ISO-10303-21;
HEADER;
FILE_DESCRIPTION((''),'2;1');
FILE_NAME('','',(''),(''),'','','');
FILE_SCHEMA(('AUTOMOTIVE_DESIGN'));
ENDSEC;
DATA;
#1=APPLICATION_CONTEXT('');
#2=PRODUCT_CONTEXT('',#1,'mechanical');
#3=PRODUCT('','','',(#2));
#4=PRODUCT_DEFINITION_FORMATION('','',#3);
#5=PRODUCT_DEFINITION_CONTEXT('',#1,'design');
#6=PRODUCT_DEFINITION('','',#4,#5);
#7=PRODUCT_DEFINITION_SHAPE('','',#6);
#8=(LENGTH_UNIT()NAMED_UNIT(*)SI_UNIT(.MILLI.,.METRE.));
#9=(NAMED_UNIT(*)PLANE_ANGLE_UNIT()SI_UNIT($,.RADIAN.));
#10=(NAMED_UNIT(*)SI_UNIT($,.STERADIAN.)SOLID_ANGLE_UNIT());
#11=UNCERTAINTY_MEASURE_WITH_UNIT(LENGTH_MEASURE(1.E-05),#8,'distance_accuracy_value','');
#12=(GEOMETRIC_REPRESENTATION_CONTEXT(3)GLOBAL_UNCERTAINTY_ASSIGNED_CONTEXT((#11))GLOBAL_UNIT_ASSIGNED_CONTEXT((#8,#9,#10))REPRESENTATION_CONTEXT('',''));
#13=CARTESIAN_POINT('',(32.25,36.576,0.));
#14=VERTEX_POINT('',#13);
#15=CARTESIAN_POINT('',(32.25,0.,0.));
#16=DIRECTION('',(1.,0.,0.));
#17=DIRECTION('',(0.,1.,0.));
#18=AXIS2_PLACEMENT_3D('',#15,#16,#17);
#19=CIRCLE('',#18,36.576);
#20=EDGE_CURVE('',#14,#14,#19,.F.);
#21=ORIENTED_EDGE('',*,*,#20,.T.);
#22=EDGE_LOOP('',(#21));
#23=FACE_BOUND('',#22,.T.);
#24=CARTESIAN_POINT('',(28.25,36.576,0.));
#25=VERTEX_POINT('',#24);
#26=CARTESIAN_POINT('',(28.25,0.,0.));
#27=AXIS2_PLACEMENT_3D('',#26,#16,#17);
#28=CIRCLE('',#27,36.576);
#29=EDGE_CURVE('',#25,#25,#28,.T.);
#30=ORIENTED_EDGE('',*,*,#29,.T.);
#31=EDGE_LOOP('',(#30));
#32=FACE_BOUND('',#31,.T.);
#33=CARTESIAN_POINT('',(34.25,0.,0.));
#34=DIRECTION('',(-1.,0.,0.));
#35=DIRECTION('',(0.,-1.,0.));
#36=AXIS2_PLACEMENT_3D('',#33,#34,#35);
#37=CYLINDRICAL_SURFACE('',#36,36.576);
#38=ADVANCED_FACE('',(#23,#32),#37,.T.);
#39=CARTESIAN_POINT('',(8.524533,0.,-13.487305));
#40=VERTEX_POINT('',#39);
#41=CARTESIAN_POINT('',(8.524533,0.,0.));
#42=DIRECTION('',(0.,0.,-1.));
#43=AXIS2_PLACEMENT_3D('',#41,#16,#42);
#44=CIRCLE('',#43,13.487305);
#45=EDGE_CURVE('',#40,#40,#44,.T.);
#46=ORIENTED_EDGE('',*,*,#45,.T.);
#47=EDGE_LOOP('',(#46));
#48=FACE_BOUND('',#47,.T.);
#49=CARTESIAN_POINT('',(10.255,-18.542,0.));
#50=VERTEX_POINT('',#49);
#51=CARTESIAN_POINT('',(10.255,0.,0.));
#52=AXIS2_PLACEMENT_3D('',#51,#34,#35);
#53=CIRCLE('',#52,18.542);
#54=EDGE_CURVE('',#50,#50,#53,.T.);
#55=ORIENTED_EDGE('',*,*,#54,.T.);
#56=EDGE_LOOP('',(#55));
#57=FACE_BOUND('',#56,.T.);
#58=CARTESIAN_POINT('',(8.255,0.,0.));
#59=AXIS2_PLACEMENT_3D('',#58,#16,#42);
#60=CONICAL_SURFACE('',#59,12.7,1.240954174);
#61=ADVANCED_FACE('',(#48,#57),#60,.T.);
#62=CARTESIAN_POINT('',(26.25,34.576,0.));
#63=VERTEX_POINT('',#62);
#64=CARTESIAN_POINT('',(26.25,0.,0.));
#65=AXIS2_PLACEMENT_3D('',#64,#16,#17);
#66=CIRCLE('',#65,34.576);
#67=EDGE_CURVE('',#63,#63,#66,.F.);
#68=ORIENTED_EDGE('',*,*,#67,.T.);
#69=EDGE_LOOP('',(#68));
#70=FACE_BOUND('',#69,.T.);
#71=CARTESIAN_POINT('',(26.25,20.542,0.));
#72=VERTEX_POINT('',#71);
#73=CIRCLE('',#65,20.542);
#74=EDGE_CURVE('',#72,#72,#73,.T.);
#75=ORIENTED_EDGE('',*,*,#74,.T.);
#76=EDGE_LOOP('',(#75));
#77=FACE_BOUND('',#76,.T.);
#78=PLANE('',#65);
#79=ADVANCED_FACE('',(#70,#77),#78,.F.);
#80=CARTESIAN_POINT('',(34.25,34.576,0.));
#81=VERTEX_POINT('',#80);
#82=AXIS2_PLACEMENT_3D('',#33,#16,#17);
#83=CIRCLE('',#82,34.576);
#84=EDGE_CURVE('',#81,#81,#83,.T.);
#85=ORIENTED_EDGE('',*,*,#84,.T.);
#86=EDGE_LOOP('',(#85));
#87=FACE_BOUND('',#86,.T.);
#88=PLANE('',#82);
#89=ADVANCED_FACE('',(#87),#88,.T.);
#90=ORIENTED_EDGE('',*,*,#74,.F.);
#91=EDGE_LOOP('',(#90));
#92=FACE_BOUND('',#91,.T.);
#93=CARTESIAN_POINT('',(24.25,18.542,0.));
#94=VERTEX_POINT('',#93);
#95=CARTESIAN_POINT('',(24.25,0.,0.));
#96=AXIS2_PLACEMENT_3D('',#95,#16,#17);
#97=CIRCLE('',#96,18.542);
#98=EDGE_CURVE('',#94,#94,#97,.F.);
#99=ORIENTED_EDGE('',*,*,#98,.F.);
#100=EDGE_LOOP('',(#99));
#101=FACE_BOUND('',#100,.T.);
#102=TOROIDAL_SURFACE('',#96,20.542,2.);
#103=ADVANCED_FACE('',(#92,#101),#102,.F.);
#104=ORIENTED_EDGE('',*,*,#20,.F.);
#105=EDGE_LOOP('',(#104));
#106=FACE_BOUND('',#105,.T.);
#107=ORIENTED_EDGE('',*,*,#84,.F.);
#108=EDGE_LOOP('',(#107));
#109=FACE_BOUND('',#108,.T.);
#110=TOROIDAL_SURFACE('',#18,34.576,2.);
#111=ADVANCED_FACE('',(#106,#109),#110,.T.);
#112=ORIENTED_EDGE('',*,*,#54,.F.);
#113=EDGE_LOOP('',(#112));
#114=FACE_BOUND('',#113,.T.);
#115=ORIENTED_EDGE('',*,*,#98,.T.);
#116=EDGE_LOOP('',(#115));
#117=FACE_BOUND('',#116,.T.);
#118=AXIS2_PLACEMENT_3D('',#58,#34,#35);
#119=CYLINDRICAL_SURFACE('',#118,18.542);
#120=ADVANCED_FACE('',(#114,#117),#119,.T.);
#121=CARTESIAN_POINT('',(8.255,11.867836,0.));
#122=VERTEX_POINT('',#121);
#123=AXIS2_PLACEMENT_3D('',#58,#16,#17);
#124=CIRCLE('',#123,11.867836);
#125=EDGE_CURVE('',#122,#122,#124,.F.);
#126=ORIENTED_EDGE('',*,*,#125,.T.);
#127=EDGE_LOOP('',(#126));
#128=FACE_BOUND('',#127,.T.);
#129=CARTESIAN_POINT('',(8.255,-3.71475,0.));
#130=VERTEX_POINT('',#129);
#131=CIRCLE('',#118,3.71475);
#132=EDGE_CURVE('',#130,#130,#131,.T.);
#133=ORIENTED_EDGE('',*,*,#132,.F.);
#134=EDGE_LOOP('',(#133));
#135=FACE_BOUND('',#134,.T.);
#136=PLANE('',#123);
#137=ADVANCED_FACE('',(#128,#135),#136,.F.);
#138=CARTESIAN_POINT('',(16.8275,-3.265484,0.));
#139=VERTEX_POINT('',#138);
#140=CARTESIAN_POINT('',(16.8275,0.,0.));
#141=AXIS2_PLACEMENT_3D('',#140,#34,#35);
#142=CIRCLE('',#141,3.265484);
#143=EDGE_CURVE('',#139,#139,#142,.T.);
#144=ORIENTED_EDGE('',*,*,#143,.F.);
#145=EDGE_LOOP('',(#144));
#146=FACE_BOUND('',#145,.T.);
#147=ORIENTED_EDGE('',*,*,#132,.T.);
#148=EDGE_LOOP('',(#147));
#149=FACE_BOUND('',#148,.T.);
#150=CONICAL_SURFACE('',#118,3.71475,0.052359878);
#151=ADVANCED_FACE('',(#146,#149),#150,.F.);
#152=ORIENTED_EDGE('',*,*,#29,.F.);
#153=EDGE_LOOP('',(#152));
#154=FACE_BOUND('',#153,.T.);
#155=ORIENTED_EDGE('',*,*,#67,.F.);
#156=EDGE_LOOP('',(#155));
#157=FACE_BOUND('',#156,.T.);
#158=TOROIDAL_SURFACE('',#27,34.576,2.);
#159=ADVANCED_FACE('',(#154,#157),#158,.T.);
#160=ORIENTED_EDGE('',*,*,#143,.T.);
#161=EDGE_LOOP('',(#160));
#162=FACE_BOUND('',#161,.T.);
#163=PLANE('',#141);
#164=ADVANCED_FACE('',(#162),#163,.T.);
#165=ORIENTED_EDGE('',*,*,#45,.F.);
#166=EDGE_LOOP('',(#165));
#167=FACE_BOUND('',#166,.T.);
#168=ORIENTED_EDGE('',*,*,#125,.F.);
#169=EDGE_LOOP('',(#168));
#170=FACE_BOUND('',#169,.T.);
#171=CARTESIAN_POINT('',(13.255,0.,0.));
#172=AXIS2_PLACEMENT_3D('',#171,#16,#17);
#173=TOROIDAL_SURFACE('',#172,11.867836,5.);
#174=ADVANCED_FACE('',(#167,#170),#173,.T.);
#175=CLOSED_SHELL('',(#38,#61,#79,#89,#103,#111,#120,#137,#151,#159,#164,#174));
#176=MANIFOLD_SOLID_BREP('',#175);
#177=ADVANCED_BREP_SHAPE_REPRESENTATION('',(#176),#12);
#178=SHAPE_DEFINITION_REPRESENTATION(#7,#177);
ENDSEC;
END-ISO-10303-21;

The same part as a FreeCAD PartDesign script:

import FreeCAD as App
import Part
import Sketcher
from FreeCAD import Vector
Q = App.Units.Quantity


def edges_at(feature, points):
    """Names of the edges that pass closest to the given points."""
    edges = feature.Shape.Edges
    near = lambda p: min(range(len(edges)), key=lambda i: edges[i].distToShape(Part.Vertex(*p))[0])
    return sorted({f"Edge{near(p) + 1}" for p in points})


def add_polygon(sketch, points):
    """Adds a closed chain of lines whose ends are joined by coincident constraints."""
    first, n = sketch.GeometryCount, len(points)
    for a, b in zip(points, points[1:] + points[:1]):
        sketch.addGeometry(Part.LineSegment(App.Vector(*a, 0), App.Vector(*b, 0)), False)
    for i in range(n):
        sketch.addConstraint(Sketcher.Constraint("Coincident", first + i, 2, first + (i + 1) % n, 1))

doc = App.newDocument("Part")
body = doc.addObject("PartDesign::Body", "Body")

sketch1 = body.newObject("Sketcher::SketchObject", "Sketch")
sketch1.AttachmentSupport = (doc.getObject("XY_Plane"), [""])
sketch1.MapMode = "FlatFace"
add_polygon(sketch1, [(8.255, 18.542), (8.255, 0), (26.25, 0), (26.25, 18.542)])
sketch1.addConstraint(Sketcher.Constraint("Vertical", 0))
sketch1.addConstraint(Sketcher.Constraint("Horizontal", 1))
sketch1.addConstraint(Sketcher.Constraint("Vertical", 2))
sketch1.addConstraint(Sketcher.Constraint("Horizontal", 3))
sketch1.addConstraint(Sketcher.Constraint("PointOnObject", 0, 2, -1))
sketch1.addConstraint(Sketcher.Constraint("DistanceY", 0, 2, 0, 1, Q("0.73 in")))
sketch1.addConstraint(Sketcher.Constraint("DistanceX", -1, 1, 0, 2, Q("0.325 in")))
sketch1.addConstraint(Sketcher.Constraint("DistanceX", 1, 1, 1, 2, Q("17.995 mm")))
revolution = body.newObject("PartDesign::Revolution", "Revolution")
revolution.Profile = sketch1
revolution.ReferenceAxis = (sketch1, ["H_Axis"])
revolution.Angle = 360

sketch2 = body.newObject("Sketcher::SketchObject", "Sketch001")
sketch2.AttachmentSupport = (doc.getObject("YZ_Plane"), [""])
sketch2.MapMode = "FlatFace"
sketch2.AttachmentOffset = App.Placement(Vector(0, 0, 0.325 * 25.4), App.Rotation())
sketch2.addGeometry(Part.Circle(Vector(0, 0, 0), Vector(0, 0, 1), 3.71475), False)
sketch2.addConstraint(Sketcher.Constraint("Coincident", 0, 3, -1, 1))
sketch2.addConstraint(Sketcher.Constraint("Diameter", 0, Q("0.2925 in")))
pocket1 = body.newObject("PartDesign::Pocket", "Pocket")
pocket1.Profile = sketch2
pocket1.Length = Q("0.3375 in")
pocket1.Reversed = True
pocket1.TaperAngle = -3

sketch3 = body.newObject("Sketcher::SketchObject", "Sketch002")
sketch3.AttachmentSupport = (doc.getObject("YZ_Plane"), [""])
sketch3.MapMode = "FlatFace"
sketch3.AttachmentOffset = App.Placement(Vector(0, 0, 26.25), App.Rotation())
sketch3.addGeometry(Part.Circle(Vector(0, 0, 0), Vector(0, 0, 1), 36.576), False)
sketch3.addConstraint(Sketcher.Constraint("Coincident", 0, 3, -1, 1))
sketch3.addConstraint(Sketcher.Constraint("Diameter", 0, Q("2.88 in")))
pad1 = body.newObject("PartDesign::Pad", "Pad")
pad1.Profile = sketch3
pad1.Length = 8
doc.recompute()

fillet = body.newObject("PartDesign::Fillet", "Fillet")
fillet.Base = (pad1, edges_at(pad1, [(26.25, -18.542, 0), (26.25, 0, 36.576), (34.25, 0, 36.576)]))
fillet.Radius = 2

sketch4 = body.newObject("Sketcher::SketchObject", "Sketch003")
sketch4.AttachmentSupport = (doc.getObject("YZ_Plane"), [""])
sketch4.MapMode = "FlatFace"
sketch4.AttachmentOffset = App.Placement(Vector(0, 0, 0.325 * 25.4), App.Rotation())
sketch4.addGeometry(Part.Circle(Vector(0, 0, 0), Vector(0, 0, 1), 18.542), False)
sketch4.addGeometry(Part.Circle(Vector(0, 0, 0), Vector(0, 0, 1), 12.7), False)
sketch4.addConstraint(Sketcher.Constraint("Coincident", 0, 3, -1, 1))
sketch4.addConstraint(Sketcher.Constraint("Coincident", 1, 3, -1, 1))
sketch4.addConstraint(Sketcher.Constraint("Diameter", 1, Q("1 in")))
sketch4.addConstraint(Sketcher.Constraint("Diameter", 0, Q("1.46 in")))
pocket2 = body.newObject("PartDesign::Pocket", "Pocket001")
pocket2.Profile = sketch4
pocket2.Length = 2
pocket2.Reversed = True

sketch5 = body.newObject("Sketcher::SketchObject", "Sketch004")
sketch5.AttachmentSupport = (doc.getObject("XZ_Plane"), [""])
sketch5.MapMode = "FlatFace"
add_polygon(sketch5, [(8.255, 12.7), (10.255, 18.542), (10.255, 12.7)])
sketch5.addConstraint(Sketcher.Constraint("Vertical", 1))
sketch5.addConstraint(Sketcher.Constraint("Horizontal", 2))
sketch5.addConstraint(Sketcher.Constraint("DistanceY", 1, 2, 1, 1, Q("0.23 in")))
sketch5.addConstraint(Sketcher.Constraint("DistanceY", -1, 1, 1, 2, Q("0.5 in")))
sketch5.addConstraint(Sketcher.Constraint("DistanceX", -1, 1, 2, 2, Q("0.325 in")))
sketch5.addConstraint(Sketcher.Constraint("DistanceX", 2, 2, 2, 1, Q("2 mm")))
revolution2 = body.newObject("PartDesign::Revolution", "Revolution001")
revolution2.Profile = sketch5
revolution2.ReferenceAxis = (sketch5, ["H_Axis"])
revolution2.Angle = 360
doc.recompute()

fillet2 = body.newObject("PartDesign::Fillet", "Fillet001")
fillet2.Base = (revolution2, edges_at(revolution2, [(8.255, 0, -12.7)]))
fillet2.Radius = 5

doc.recompute()
